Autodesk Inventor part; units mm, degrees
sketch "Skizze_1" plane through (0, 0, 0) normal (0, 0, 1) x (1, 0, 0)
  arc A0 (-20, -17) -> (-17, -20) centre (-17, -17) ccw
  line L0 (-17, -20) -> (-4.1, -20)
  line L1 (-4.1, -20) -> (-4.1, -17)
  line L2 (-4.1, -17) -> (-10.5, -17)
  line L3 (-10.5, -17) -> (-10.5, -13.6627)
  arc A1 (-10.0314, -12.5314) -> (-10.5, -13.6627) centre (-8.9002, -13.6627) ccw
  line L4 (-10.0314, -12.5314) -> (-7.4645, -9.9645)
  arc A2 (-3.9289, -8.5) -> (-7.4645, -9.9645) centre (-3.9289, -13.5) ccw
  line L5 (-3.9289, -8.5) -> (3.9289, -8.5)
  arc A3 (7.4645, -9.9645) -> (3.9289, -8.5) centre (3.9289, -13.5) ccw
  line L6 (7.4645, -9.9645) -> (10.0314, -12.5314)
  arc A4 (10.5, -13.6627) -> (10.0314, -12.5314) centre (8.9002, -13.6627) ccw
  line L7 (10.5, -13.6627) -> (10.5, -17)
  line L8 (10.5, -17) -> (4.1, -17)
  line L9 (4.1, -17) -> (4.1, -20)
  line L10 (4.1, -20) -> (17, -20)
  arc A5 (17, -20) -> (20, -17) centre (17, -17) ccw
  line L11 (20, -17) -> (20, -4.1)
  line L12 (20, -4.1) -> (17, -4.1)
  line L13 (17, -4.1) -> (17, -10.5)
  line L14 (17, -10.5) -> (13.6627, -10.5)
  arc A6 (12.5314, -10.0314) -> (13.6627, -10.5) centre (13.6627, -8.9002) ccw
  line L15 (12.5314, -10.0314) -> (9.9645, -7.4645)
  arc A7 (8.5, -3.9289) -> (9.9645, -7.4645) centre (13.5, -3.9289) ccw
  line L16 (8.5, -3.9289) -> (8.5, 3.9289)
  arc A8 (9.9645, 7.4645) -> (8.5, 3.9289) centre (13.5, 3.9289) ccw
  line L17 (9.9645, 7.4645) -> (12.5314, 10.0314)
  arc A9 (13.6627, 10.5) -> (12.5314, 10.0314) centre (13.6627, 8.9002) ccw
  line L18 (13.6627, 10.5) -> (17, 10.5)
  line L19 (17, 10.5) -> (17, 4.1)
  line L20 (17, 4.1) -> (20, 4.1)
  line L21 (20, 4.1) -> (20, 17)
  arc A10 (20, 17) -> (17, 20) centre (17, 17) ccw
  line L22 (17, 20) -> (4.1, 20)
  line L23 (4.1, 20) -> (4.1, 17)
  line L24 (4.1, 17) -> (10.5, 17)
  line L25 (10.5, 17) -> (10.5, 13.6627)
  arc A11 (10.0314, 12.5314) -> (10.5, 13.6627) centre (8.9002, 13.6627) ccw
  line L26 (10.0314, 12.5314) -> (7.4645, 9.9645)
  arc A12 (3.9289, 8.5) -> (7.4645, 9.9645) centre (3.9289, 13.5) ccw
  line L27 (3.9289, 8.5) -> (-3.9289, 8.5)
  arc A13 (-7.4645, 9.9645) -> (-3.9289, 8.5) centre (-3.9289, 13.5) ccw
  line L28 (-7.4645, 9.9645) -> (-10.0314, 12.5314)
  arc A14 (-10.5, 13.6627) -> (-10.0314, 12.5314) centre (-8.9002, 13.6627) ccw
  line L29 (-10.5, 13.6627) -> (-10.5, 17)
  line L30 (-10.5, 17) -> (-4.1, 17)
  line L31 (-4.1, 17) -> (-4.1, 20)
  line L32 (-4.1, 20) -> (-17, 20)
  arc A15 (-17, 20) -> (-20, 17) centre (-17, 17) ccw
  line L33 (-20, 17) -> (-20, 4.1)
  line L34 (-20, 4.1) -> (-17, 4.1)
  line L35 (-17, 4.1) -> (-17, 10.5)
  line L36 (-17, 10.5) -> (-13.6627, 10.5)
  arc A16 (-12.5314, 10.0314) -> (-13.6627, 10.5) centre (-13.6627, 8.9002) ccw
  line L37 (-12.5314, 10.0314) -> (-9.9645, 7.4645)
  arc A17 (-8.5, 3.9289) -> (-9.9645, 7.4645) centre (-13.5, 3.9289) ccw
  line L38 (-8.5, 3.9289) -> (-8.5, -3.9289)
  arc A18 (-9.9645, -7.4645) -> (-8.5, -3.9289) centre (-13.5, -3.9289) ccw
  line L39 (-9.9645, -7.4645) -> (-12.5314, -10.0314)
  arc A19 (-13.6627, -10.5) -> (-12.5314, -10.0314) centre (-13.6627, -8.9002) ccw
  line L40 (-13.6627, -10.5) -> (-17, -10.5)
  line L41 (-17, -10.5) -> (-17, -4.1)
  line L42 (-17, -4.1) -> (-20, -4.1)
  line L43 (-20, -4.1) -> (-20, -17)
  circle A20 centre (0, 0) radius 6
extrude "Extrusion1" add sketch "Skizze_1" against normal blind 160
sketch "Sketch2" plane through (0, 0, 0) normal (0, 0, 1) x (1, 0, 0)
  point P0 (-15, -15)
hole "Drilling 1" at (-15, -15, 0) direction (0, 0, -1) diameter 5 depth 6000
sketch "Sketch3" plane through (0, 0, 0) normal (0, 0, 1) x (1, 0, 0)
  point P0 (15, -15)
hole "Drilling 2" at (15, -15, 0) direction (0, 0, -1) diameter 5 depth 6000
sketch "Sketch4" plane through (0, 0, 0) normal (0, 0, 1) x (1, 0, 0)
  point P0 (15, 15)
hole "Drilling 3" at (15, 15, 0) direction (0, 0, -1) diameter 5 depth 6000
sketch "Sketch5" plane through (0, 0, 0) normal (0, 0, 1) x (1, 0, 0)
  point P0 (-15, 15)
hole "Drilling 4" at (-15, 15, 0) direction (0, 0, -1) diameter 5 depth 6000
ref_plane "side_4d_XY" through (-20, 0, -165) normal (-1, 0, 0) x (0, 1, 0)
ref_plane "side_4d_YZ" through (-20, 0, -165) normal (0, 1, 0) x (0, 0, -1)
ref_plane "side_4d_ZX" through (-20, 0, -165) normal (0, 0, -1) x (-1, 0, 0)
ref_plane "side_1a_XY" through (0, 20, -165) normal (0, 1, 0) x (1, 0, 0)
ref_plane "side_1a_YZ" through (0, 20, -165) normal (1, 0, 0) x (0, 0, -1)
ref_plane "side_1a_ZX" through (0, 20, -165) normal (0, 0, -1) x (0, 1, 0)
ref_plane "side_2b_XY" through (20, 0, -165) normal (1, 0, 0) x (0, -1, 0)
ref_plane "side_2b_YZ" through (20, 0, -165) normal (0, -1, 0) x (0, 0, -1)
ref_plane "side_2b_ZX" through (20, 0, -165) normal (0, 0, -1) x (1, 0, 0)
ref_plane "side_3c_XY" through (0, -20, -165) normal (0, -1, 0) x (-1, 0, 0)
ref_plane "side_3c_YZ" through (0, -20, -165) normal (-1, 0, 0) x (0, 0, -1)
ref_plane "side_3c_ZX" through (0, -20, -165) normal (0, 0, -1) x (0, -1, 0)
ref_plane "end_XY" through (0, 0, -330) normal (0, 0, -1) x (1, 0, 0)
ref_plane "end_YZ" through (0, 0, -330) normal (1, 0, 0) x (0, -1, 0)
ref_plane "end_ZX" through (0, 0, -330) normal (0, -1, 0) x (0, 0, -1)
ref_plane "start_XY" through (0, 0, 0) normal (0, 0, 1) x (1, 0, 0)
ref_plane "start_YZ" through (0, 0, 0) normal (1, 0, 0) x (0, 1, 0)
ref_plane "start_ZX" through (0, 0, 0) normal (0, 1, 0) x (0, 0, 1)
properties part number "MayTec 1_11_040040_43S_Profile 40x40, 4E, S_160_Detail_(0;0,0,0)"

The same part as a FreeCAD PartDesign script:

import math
import FreeCAD as App
import Part
import Sketcher

V = App.Vector

doc = App.newDocument("Part")
body = doc.addObject("PartDesign::Body", "Body")

# Sketch on XY plane
sketch1 = doc.addObject("Sketcher::SketchObject", "Sketch")
body.addObject(sketch1)
sketch1.AttachmentSupport = (doc.XY_Plane, [""])
sketch1.MapMode = "FlatFace"
sketch1.addGeometry([
    Part.LineSegment(V(-20, -4.1, 0), V(-20, -17, 0)),  # 0
    Part.ArcOfCircle(Part.Circle(V(-17, -17, 0), V(0, 0, 1), 3), math.radians(180), math.radians(270)),  # 1
    Part.LineSegment(V(-17, -20, 0), V(-4.1, -20, 0)),  # 2
    Part.LineSegment(V(-4.1, -20, 0), V(-4.1, -17, 0)),  # 3
    Part.LineSegment(V(-4.1, -17, 0), V(-10.5, -17, 0)),  # 4
    Part.LineSegment(V(-10.5, -17, 0), V(-10.5, -13.7, 0)),  # 5
    Part.ArcOfCircle(Part.Circle(V(-8.9, -13.7, 0), V(0, 0, 1), 1.6), math.radians(135), math.radians(180)),  # 6
    Part.LineSegment(V(-10, -12.5, 0), V(-7.5, -10, 0)),  # 7
    Part.ArcOfCircle(Part.Circle(V(-3.9, -13.5, 0), V(0, 0, 1), 5), math.radians(90), math.radians(135)),  # 8
    Part.LineSegment(V(-3.9, -8.5, 0), V(3.9, -8.5, 0)),  # 9
    Part.ArcOfCircle(Part.Circle(V(3.9, -13.5, 0), V(0, 0, 1), 5), math.radians(45), math.radians(90)),  # 10
    Part.LineSegment(V(7.5, -10, 0), V(10, -12.5, 0)),  # 11
    Part.ArcOfCircle(Part.Circle(V(8.9, -13.7, 0), V(0, 0, 1), 1.6), math.radians(0), math.radians(45)),  # 12
    Part.LineSegment(V(10.5, -13.7, 0), V(10.5, -17, 0)),  # 13
    Part.LineSegment(V(10.5, -17, 0), V(4.1, -17, 0)),  # 14
    Part.LineSegment(V(4.1, -17, 0), V(4.1, -20, 0)),  # 15
    Part.LineSegment(V(4.1, -20, 0), V(17, -20, 0)),  # 16
    Part.ArcOfCircle(Part.Circle(V(17, -17, 0), V(0, 0, 1), 3), math.radians(-90), math.radians(0)),  # 17
    Part.LineSegment(V(20, -17, 0), V(20, -4.1, 0)),  # 18
    Part.LineSegment(V(20, -4.1, 0), V(17, -4.1, 0)),  # 19
    Part.LineSegment(V(17, -4.1, 0), V(17, -10.5, 0)),  # 20
    Part.LineSegment(V(17, -10.5, 0), V(13.7, -10.5, 0)),  # 21
    Part.ArcOfCircle(Part.Circle(V(13.7, -8.9, 0), V(0, 0, 1), 1.6), math.radians(-135), math.radians(-90)),  # 22
    Part.LineSegment(V(12.5, -10, 0), V(10, -7.5, 0)),  # 23
    Part.ArcOfCircle(Part.Circle(V(13.5, -3.9, 0), V(0, 0, 1), 5), math.radians(180), math.radians(225)),  # 24
    Part.LineSegment(V(8.5, -3.9, 0), V(8.5, 3.9, 0)),  # 25
    Part.ArcOfCircle(Part.Circle(V(13.5, 3.9, 0), V(0, 0, 1), 5), math.radians(135), math.radians(180)),  # 26
    Part.LineSegment(V(10, 7.5, 0), V(12.5, 10, 0)),  # 27
    Part.ArcOfCircle(Part.Circle(V(13.7, 8.9, 0), V(0, 0, 1), 1.6), math.radians(90), math.radians(135)),  # 28
    Part.LineSegment(V(13.7, 10.5, 0), V(17, 10.5, 0)),  # 29
    Part.LineSegment(V(17, 10.5, 0), V(17, 4.1, 0)),  # 30
    Part.LineSegment(V(17, 4.1, 0), V(20, 4.1, 0)),  # 31
    Part.LineSegment(V(20, 4.1, 0), V(20, 17, 0)),  # 32
    Part.ArcOfCircle(Part.Circle(V(17, 17, 0), V(0, 0, 1), 3), math.radians(0), math.radians(90)),  # 33
    Part.LineSegment(V(17, 20, 0), V(4.1, 20, 0)),  # 34
    Part.LineSegment(V(4.1, 20, 0), V(4.1, 17, 0)),  # 35
    Part.LineSegment(V(4.1, 17, 0), V(10.5, 17, 0)),  # 36
    Part.LineSegment(V(10.5, 17, 0), V(10.5, 13.7, 0)),  # 37
    Part.ArcOfCircle(Part.Circle(V(8.9, 13.7, 0), V(0, 0, 1), 1.6), math.radians(-45), math.radians(0)),  # 38
    Part.LineSegment(V(10, 12.5, 0), V(7.5, 10, 0)),  # 39
    Part.ArcOfCircle(Part.Circle(V(3.9, 13.5, 0), V(0, 0, 1), 5), math.radians(-90), math.radians(-45)),  # 40
    Part.LineSegment(V(3.9, 8.5, 0), V(-3.9, 8.5, 0)),  # 41
    Part.ArcOfCircle(Part.Circle(V(-3.9, 13.5, 0), V(0, 0, 1), 5), math.radians(-135), math.radians(-90)),  # 42
    Part.LineSegment(V(-7.5, 10, 0), V(-10, 12.5, 0)),  # 43
    Part.ArcOfCircle(Part.Circle(V(-8.9, 13.7, 0), V(0, 0, 1), 1.6), math.radians(180), math.radians(225)),  # 44
    Part.LineSegment(V(-10.5, 13.7, 0), V(-10.5, 17, 0)),  # 45
    Part.LineSegment(V(-10.5, 17, 0), V(-4.1, 17, 0)),  # 46
    Part.LineSegment(V(-4.1, 17, 0), V(-4.1, 20, 0)),  # 47
    Part.LineSegment(V(-4.1, 20, 0), V(-17, 20, 0)),  # 48
    Part.ArcOfCircle(Part.Circle(V(-17, 17, 0), V(0, 0, 1), 3), math.radians(90), math.radians(180)),  # 49
    Part.LineSegment(V(-20, 17, 0), V(-20, 4.1, 0)),  # 50
    Part.LineSegment(V(-20, 4.1, 0), V(-17, 4.1, 0)),  # 51
    Part.LineSegment(V(-17, 4.1, 0), V(-17, 10.5, 0)),  # 52
    Part.LineSegment(V(-17, 10.5, 0), V(-13.7, 10.5, 0)),  # 53
    Part.ArcOfCircle(Part.Circle(V(-13.7, 8.9, 0), V(0, 0, 1), 1.6), math.radians(45), math.radians(90)),  # 54
    Part.LineSegment(V(-12.5, 10, 0), V(-10, 7.5, 0)),  # 55
    Part.ArcOfCircle(Part.Circle(V(-13.5, 3.9, 0), V(0, 0, 1), 5), math.radians(0), math.radians(45)),  # 56
    Part.LineSegment(V(-8.5, 3.9, 0), V(-8.5, -3.9, 0)),  # 57
    Part.ArcOfCircle(Part.Circle(V(-13.5, -3.9, 0), V(0, 0, 1), 5), math.radians(-45), math.radians(0)),  # 58
    Part.LineSegment(V(-10, -7.5, 0), V(-12.5, -10, 0)),  # 59
    Part.ArcOfCircle(Part.Circle(V(-13.7, -8.9, 0), V(0, 0, 1), 1.6), math.radians(-90), math.radians(-45)),  # 60
    Part.LineSegment(V(-13.7, -10.5, 0), V(-17, -10.5, 0)),  # 61
    Part.LineSegment(V(-17, -10.5, 0), V(-17, -4.1, 0)),  # 62
    Part.LineSegment(V(-17, -4.1, 0), V(-20, -4.1, 0)),  # 63
    Part.Circle(V(0, 0, 0), V(0, 0, 1), 6),  # 64
], False)
sketch1.addConstraint([
    Sketcher.Constraint("Tangent", 0, 2, 1, 1),
    Sketcher.Constraint("Tangent", 1, 2, 2, 1),
    Sketcher.Constraint("Coincident", 2, 2, 3, 1),
    Sketcher.Constraint("Coincident", 3, 2, 4, 1),
    Sketcher.Constraint("Coincident", 4, 2, 5, 1),
    Sketcher.Constraint("Tangent", 5, 2, 6, 2),
    Sketcher.Constraint("Tangent", 6, 1, 7, 1),
    Sketcher.Constraint("Tangent", 7, 2, 8, 2),
    Sketcher.Constraint("Tangent", 8, 1, 9, 1),
    Sketcher.Constraint("Tangent", 9, 2, 10, 2),
    Sketcher.Constraint("Tangent", 10, 1, 11, 1),
    Sketcher.Constraint("Tangent", 11, 2, 12, 2),
    Sketcher.Constraint("Tangent", 12, 1, 13, 1),
    Sketcher.Constraint("Coincident", 13, 2, 14, 1),
    Sketcher.Constraint("Coincident", 14, 2, 15, 1),
    Sketcher.Constraint("Coincident", 15, 2, 16, 1),
    Sketcher.Constraint("Tangent", 16, 2, 17, 1),
    Sketcher.Constraint("Tangent", 17, 2, 18, 1),
    Sketcher.Constraint("Coincident", 18, 2, 19, 1),
    Sketcher.Constraint("Coincident", 19, 2, 20, 1),
    Sketcher.Constraint("Coincident", 20, 2, 21, 1),
    Sketcher.Constraint("Tangent", 21, 2, 22, 2),
    Sketcher.Constraint("Tangent", 22, 1, 23, 1),
    Sketcher.Constraint("Tangent", 23, 2, 24, 2),
    Sketcher.Constraint("Tangent", 24, 1, 25, 1),
    Sketcher.Constraint("Tangent", 25, 2, 26, 2),
    Sketcher.Constraint("Tangent", 26, 1, 27, 1),
    Sketcher.Constraint("Tangent", 27, 2, 28, 2),
    Sketcher.Constraint("Tangent", 28, 1, 29, 1),
    Sketcher.Constraint("Coincident", 29, 2, 30, 1),
    Sketcher.Constraint("Coincident", 30, 2, 31, 1),
    Sketcher.Constraint("Coincident", 31, 2, 32, 1),
    Sketcher.Constraint("Tangent", 32, 2, 33, 1),
    Sketcher.Constraint("Tangent", 33, 2, 34, 1),
    Sketcher.Constraint("Coincident", 34, 2, 35, 1),
    Sketcher.Constraint("Coincident", 35, 2, 36, 1),
    Sketcher.Constraint("Coincident", 36, 2, 37, 1),
    Sketcher.Constraint("Tangent", 37, 2, 38, 2),
    Sketcher.Constraint("Tangent", 38, 1, 39, 1),
    Sketcher.Constraint("Tangent", 39, 2, 40, 2),
    Sketcher.Constraint("Tangent", 40, 1, 41, 1),
    Sketcher.Constraint("Tangent", 41, 2, 42, 2),
    Sketcher.Constraint("Tangent", 42, 1, 43, 1),
    Sketcher.Constraint("Tangent", 43, 2, 44, 2),
    Sketcher.Constraint("Tangent", 44, 1, 45, 1),
    Sketcher.Constraint("Coincident", 45, 2, 46, 1),
    Sketcher.Constraint("Coincident", 46, 2, 47, 1),
    Sketcher.Constraint("Coincident", 47, 2, 48, 1),
    Sketcher.Constraint("Tangent", 48, 2, 49, 1),
    Sketcher.Constraint("Tangent", 49, 2, 50, 1),
    Sketcher.Constraint("Coincident", 50, 2, 51, 1),
    Sketcher.Constraint("Coincident", 51, 2, 52, 1),
    Sketcher.Constraint("Coincident", 52, 2, 53, 1),
    Sketcher.Constraint("Tangent", 53, 2, 54, 2),
    Sketcher.Constraint("Tangent", 54, 1, 55, 1),
    Sketcher.Constraint("Tangent", 55, 2, 56, 2),
    Sketcher.Constraint("Tangent", 56, 1, 57, 1),
    Sketcher.Constraint("Tangent", 57, 2, 58, 2),
    Sketcher.Constraint("Tangent", 58, 1, 59, 1),
    Sketcher.Constraint("Tangent", 59, 2, 60, 2),
    Sketcher.Constraint("Tangent", 60, 1, 61, 1),
    Sketcher.Constraint("Coincident", 61, 2, 62, 1),
    Sketcher.Constraint("Coincident", 62, 2, 63, 1),
    Sketcher.Constraint("Coincident", 63, 2, 0, 1),
    Sketcher.Constraint("Vertical", 0),
    Sketcher.Constraint("Horizontal", 2),
    Sketcher.Constraint("Vertical", 3),
    Sketcher.Constraint("Horizontal", 4),
    Sketcher.Constraint("Vertical", 5),
    Sketcher.Constraint("Horizontal", 9),
    Sketcher.Constraint("Vertical", 13),
    Sketcher.Constraint("Horizontal", 14),
    Sketcher.Constraint("Vertical", 15),
    Sketcher.Constraint("Horizontal", 16),
    Sketcher.Constraint("Vertical", 18),
    Sketcher.Constraint("Horizontal", 19),
    Sketcher.Constraint("Vertical", 20),
    Sketcher.Constraint("Horizontal", 21),
    Sketcher.Constraint("Vertical", 25),
    Sketcher.Constraint("Horizontal", 29),
    Sketcher.Constraint("Vertical", 30),
    Sketcher.Constraint("Horizontal", 31),
    Sketcher.Constraint("Vertical", 32),
    Sketcher.Constraint("Horizontal", 34),
    Sketcher.Constraint("Vertical", 35),
    Sketcher.Constraint("Horizontal", 36),
    Sketcher.Constraint("Vertical", 37),
    Sketcher.Constraint("Horizontal", 41),
    Sketcher.Constraint("Vertical", 45),
    Sketcher.Constraint("Horizontal", 46),
    Sketcher.Constraint("Vertical", 47),
    Sketcher.Constraint("Horizontal", 48),
    Sketcher.Constraint("Vertical", 50),
    Sketcher.Constraint("Horizontal", 51),
    Sketcher.Constraint("Vertical", 52),
    Sketcher.Constraint("Horizontal", 53),
    Sketcher.Constraint("Vertical", 57),
    Sketcher.Constraint("Horizontal", 61),
    Sketcher.Constraint("Vertical", 62),
    Sketcher.Constraint("Horizontal", 63),
    Sketcher.Constraint("Coincident", 64, 3, -1, 1),
    Sketcher.Constraint("Equal", 8, 10),
    Sketcher.Constraint("Equal", 6, 12),
    Sketcher.Constraint("Equal", 1, 17),
    Sketcher.Constraint("Equal", 12, 22),
    Sketcher.Constraint("Equal", 10, 24),
    Sketcher.Constraint("Equal", 24, 26),
    Sketcher.Constraint("Equal", 22, 28),
    Sketcher.Constraint("Equal", 17, 33),
    Sketcher.Constraint("Equal", 28, 38),
    Sketcher.Constraint("Equal", 26, 40),
    Sketcher.Constraint("Equal", 40, 42),
    Sketcher.Constraint("Equal", 38, 44),
    Sketcher.Constraint("Equal", 33, 49),
    Sketcher.Constraint("Equal", 44, 54),
    Sketcher.Constraint("Equal", 42, 56),
    Sketcher.Constraint("Equal", 56, 58),
    Sketcher.Constraint("Equal", 54, 60),
    Sketcher.Constraint("Symmetric", 1, 3, 33, 3, -1, 1),
    Sketcher.Constraint("Symmetric", 6, 3, 38, 3, -1, 1),
    Sketcher.Constraint("Symmetric", 8, 3, 40, 3, -1, 1),
    Sketcher.Constraint("Symmetric", 12, 3, 44, 3, -1, 1),
    Sketcher.Constraint("Symmetric", 17, 3, 49, 3, -1, 1),
    Sketcher.Constraint("Symmetric", 22, 3, 54, 3, -1, 1),
    Sketcher.Constraint("Symmetric", 24, 3, 56, 3, -1, 1),
    Sketcher.Constraint("Symmetric", 28, 3, 60, 3, -1, 1),
    Sketcher.Constraint("Symmetric", 3, 2, 35, 2, -1, 1),
    Sketcher.Constraint("Symmetric", 14, 2, 46, 2, -1, 1),
    Sketcher.Constraint("Symmetric", 19, 2, 51, 2, -1, 1),
    Sketcher.Constraint("Symmetric", 30, 2, 62, 2, -1, 1),
    Sketcher.Constraint("Symmetric", 6, 3, 12, 3, -2),
    Sketcher.Constraint("Symmetric", 1, 3, 17, 3, -2),
    Sketcher.Constraint("Symmetric", 28, 3, 54, 3, -2),
    Sketcher.Constraint("Symmetric", 3, 2, 14, 2, -2),
    Sketcher.Constraint("Symmetric", 30, 2, 51, 2, -2),
    Sketcher.Constraint("Perpendicular", 7, 11),
    Sketcher.Constraint("Parallel", 11, 23),
    Sketcher.Constraint("Perpendicular", 23, 27),
    Sketcher.Constraint("Perpendicular", 39, 43),
    Sketcher.Constraint("Perpendicular", 55, 59),
    Sketcher.Constraint("Horizontal", 26, 3, 56, 3),
    Sketcher.Constraint("Horizontal", 0, 2, 3, 2),
    Sketcher.Constraint("Vertical", 16, 2, 19, 2),
    Sketcher.Constraint("Equal", 48, 0),
    Sketcher.Constraint("Equal", 61, 5),
    Sketcher.Constraint("Equal", 46, 20),
    Sketcher.Constraint("Equal", 41, 25),
    Sketcher.Constraint("Equal", 11, 23),
    Sketcher.Constraint("Diameter", 64, 12.0),
    Sketcher.Constraint("Radius", 1, 3.0),
    Sketcher.Constraint("Radius", 8, 5.0),
    Sketcher.Constraint("DistanceX", 2, 1, 2, 2, 12.9),
    Sketcher.Constraint("DistanceX", 4, 2, 4, 1, 6.4),
    Sketcher.Constraint("DistanceX", 1, 3, -1, 1, 17.0),
    Sketcher.Constraint("DistanceY", 8, 3, -1, 1, 13.5),
    Sketcher.Constraint("Radius", 6, 1.5998),
    Sketcher.Constraint("DistanceX", 9, 1, 9, 2, 7.8578),
])
pad1 = doc.addObject("PartDesign::Pad", "Pad")
body.addObject(pad1)
pad1.Profile = sketch1
pad1.Length = 160
pad1.Reversed = True

# Sketch on XY plane
sketch2 = doc.addObject("Sketcher::SketchObject", "Sketch001")
body.addObject(sketch2)
sketch2.AttachmentSupport = (doc.XY_Plane, [""])
sketch2.MapMode = "FlatFace"
sketch2.addGeometry(Part.Circle(V(-15, -15, 0), V(0, 0, 1), 2.5), False)
sketch2.addConstraint([
    Sketcher.Constraint("Diameter", 0, 5.0),
    Sketcher.Constraint("DistanceX", 0, 3, -1, 1, 15.0),
    Sketcher.Constraint("DistanceY", 0, 3, -1, 1, 15.0),
])
doc.recompute()
hole = doc.addObject("PartDesign::Hole", "Hole")
body.addObject(hole)
hole.Profile = sketch2
hole.ThreadType = "None"
hole.Diameter = 5
hole.DepthType = "Dimension"
hole.Depth = 6000
hole.DrillPoint = "Flat"

# Sketch on XY plane
sketch3 = doc.addObject("Sketcher::SketchObject", "Sketch002")
body.addObject(sketch3)
sketch3.AttachmentSupport = (doc.XY_Plane, [""])
sketch3.MapMode = "FlatFace"
sketch3.addGeometry(Part.Circle(V(15, -15, 0), V(0, 0, 1), 2.5), False)
sketch3.addConstraint([
    Sketcher.Constraint("Diameter", 0, 5.0),
    Sketcher.Constraint("DistanceX", -1, 1, 0, 3, 15.0),
    Sketcher.Constraint("DistanceY", 0, 3, -1, 1, 15.0),
])
doc.recompute()
hole2 = doc.addObject("PartDesign::Hole", "Hole001")
body.addObject(hole2)
hole2.Profile = sketch3
hole2.ThreadType = "None"
hole2.Diameter = 5
hole2.DepthType = "Dimension"
hole2.Depth = 6000
hole2.DrillPoint = "Flat"

# Sketch on XY plane
sketch4 = doc.addObject("Sketcher::SketchObject", "Sketch003")
body.addObject(sketch4)
sketch4.AttachmentSupport = (doc.XY_Plane, [""])
sketch4.MapMode = "FlatFace"
sketch4.addGeometry(Part.Circle(V(15, 15, 0), V(0, 0, 1), 2.5), False)
sketch4.addConstraint([
    Sketcher.Constraint("Diameter", 0, 5.0),
    Sketcher.Constraint("DistanceX", -1, 1, 0, 3, 15.0),
    Sketcher.Constraint("DistanceY", -1, 1, 0, 3, 15.0),
])
doc.recompute()
hole3 = doc.addObject("PartDesign::Hole", "Hole002")
body.addObject(hole3)
hole3.Profile = sketch4
hole3.ThreadType = "None"
hole3.Diameter = 5
hole3.DepthType = "Dimension"
hole3.Depth = 6000
hole3.DrillPoint = "Flat"

# Sketch on XY plane
sketch5 = doc.addObject("Sketcher::SketchObject", "Sketch004")
body.addObject(sketch5)
sketch5.AttachmentSupport = (doc.XY_Plane, [""])
sketch5.MapMode = "FlatFace"
sketch5.addGeometry(Part.Circle(V(-15, 15, 0), V(0, 0, 1), 2.5), False)
sketch5.addConstraint([
    Sketcher.Constraint("Diameter", 0, 5.0),
    Sketcher.Constraint("DistanceX", 0, 3, -1, 1, 15.0),
    Sketcher.Constraint("DistanceY", -1, 1, 0, 3, 15.0),
])
doc.recompute()
hole4 = doc.addObject("PartDesign::Hole", "Hole003")
body.addObject(hole4)
hole4.Profile = sketch5
hole4.ThreadType = "None"
hole4.Diameter = 5
hole4.DepthType = "Dimension"
hole4.Depth = 6000
hole4.DrillPoint = "Flat"

doc.recompute()
